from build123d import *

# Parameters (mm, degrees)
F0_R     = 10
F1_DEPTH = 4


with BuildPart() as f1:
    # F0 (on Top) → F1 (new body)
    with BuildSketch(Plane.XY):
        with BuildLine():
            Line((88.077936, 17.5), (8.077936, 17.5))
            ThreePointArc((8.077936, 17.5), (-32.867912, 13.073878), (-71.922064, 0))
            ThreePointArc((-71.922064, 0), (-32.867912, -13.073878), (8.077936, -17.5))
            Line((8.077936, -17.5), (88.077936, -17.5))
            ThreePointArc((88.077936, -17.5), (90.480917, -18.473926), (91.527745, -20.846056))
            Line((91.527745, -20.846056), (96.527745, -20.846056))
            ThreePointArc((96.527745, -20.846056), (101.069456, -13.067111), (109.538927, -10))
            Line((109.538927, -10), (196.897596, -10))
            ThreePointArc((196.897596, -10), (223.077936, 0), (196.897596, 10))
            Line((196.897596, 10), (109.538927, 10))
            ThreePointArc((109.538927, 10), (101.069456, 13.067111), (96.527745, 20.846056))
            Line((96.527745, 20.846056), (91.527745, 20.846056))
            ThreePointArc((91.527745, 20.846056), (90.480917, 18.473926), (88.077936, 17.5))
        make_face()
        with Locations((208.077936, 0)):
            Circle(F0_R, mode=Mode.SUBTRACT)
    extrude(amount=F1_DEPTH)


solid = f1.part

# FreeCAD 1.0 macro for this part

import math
import FreeCAD as App
import Part
import Sketcher
from FreeCAD import Vector
Q = App.Units.Quantity

doc = App.newDocument("Part")
body = doc.addObject("PartDesign::Body", "Body")

# Sketch on XY plane
sketch1 = doc.addObject("Sketcher::SketchObject", "Sketch")
body.addObject(sketch1)
sketch1.AttachmentSupport = (doc.XY_Plane, [""])
sketch1.MapMode = "FlatFace"
sketch1.addGeometry([
    Part.LineSegment(Vector(88.077936, 17.5, 0), Vector(8.077936, 17.5, 0)),  # 0
    Part.ArcOfCircle(Part.Circle(Vector(8.07794, -174.10716, 0), Vector(0, 0, 1), 191.60716), math.radians(90.000001), math.radians(114.678173)),  # 1
    Part.ArcOfCircle(Part.Circle(Vector(8.07794, 174.10716, 0), Vector(0, 0, 1), 191.60716), math.radians(-114.678173), math.radians(-90.000001)),  # 2
    Part.LineSegment(Vector(8.077936, -17.5, 0), Vector(88.077936, -17.5, 0)),  # 3
    Part.ArcOfCircle(Part.Circle(Vector(88.077936, -20.951418, 0), Vector(0, 0, 1), 3.451418), math.radians(1.749349), math.radians(89.999994)),  # 4
    Part.LineSegment(Vector(91.527745, -20.846056, 0), Vector(96.527745, -20.846056, 0)),  # 5
    Part.ArcOfCircle(Part.Circle(Vector(109.538928, -23.227287, 0), Vector(0, 0, 1), 13.227287), math.radians(90.000002), math.radians(169.628832)),  # 6
    Part.LineSegment(Vector(109.538927, -10, 0), Vector(196.897596, -10, 0)),  # 7
    Part.ArcOfCircle(Part.Circle(Vector(208.077936, 0, 0), Vector(0, 0, 1), 15), math.radians(-138.189685), math.radians(138.189685)),  # 8
    Part.LineSegment(Vector(196.897596, 10, 0), Vector(109.538927, 10, 0)),  # 9
    Part.ArcOfCircle(Part.Circle(Vector(109.538928, 23.227287, 0), Vector(0, 0, 1), 13.227287), math.radians(-169.628832), math.radians(-90.000002)),  # 10
    Part.LineSegment(Vector(96.527745, 20.846056, 0), Vector(91.527745, 20.846056, 0)),  # 11
    Part.ArcOfCircle(Part.Circle(Vector(88.077936, 20.951418, 0), Vector(0, 0, 1), 3.451418), math.radians(-89.999994), math.radians(-1.749349)),  # 12
    Part.Circle(Vector(208.077936, 0, 0), Vector(0, 0, 1), 10),  # 13
], False)
sketch1.addConstraint([
    Sketcher.Constraint("Tangent", 0, 2, 1, 1),
    Sketcher.Constraint("Coincident", 1, 2, 2, 1),
    Sketcher.Constraint("Tangent", 2, 2, 3, 1),
    Sketcher.Constraint("Tangent", 3, 2, 4, 2),
    Sketcher.Constraint("Coincident", 4, 1, 5, 1),
    Sketcher.Constraint("Coincident", 5, 2, 6, 2),
    Sketcher.Constraint("Tangent", 6, 1, 7, 1),
    Sketcher.Constraint("Coincident", 7, 2, 8, 1),
    Sketcher.Constraint("Coincident", 8, 2, 9, 1),
    Sketcher.Constraint("Tangent", 9, 2, 10, 2),
    Sketcher.Constraint("Coincident", 10, 1, 11, 1),
    Sketcher.Constraint("Coincident", 11, 2, 12, 2),
    Sketcher.Constraint("Tangent", 12, 1, 0, 1),
    Sketcher.Constraint("Horizontal", 0),
    Sketcher.Constraint("Horizontal", 3),
    Sketcher.Constraint("Horizontal", 5),
    Sketcher.Constraint("Horizontal", 7),
    Sketcher.Constraint("Horizontal", 9),
    Sketcher.Constraint("Horizontal", 11),
    Sketcher.Constraint("Coincident", 13, 3, 8, 3),
    Sketcher.Constraint("Equal", 1, 2),
    Sketcher.Constraint("Equal", 6, 10),
    Sketcher.Constraint("Equal", 4, 12),
    Sketcher.Constraint("Symmetric", 1, 3, 2, 3, -1),
    Sketcher.Constraint("Symmetric", 6, 3, 10, 3, -1),
    Sketcher.Constraint("Symmetric", 4, 1, 11, 2, -1),
    Sketcher.Constraint("PointOnObject", 8, 3, -1),
    Sketcher.Constraint("Diameter", 13, Q("20 mm")),
    Sketcher.Constraint("Radius", 8, Q("15 mm")),
    Sketcher.Constraint("DistanceX", 0, 2, 0, 1, Q("80 mm")),
    Sketcher.Constraint("DistanceX", 5, 1, 5, 2, Q("5 mm")),
    Sketcher.Constraint("DistanceY", 6, 1, -1, 1, Q("10 mm")),
    Sketcher.Constraint("DistanceX", 4, 3, 8, 3, Q("120 mm")),
    Sketcher.Constraint("DistanceX", 1, 2, 0, 2, Q("80 mm")),
    Sketcher.Constraint("DistanceY", 2, 2, 0, 2, Q("35 mm")),
    Sketcher.Constraint("Radius", 4, Q("3.451418 mm")),
    Sketcher.Constraint("Radius", 6, Q("13.227287 mm")),
    Sketcher.Constraint("DistanceX", 7, 1, 7, 2, Q("87.358669 mm")),
    Sketcher.Constraint("DistanceX", -1, 1, 1, 3, Q("8.07794 mm")),
])
pad1 = doc.addObject("PartDesign::Pad", "Pad")
body.addObject(pad1)
pad1.Profile = sketch1
pad1.Length = 4

doc.recompute()
